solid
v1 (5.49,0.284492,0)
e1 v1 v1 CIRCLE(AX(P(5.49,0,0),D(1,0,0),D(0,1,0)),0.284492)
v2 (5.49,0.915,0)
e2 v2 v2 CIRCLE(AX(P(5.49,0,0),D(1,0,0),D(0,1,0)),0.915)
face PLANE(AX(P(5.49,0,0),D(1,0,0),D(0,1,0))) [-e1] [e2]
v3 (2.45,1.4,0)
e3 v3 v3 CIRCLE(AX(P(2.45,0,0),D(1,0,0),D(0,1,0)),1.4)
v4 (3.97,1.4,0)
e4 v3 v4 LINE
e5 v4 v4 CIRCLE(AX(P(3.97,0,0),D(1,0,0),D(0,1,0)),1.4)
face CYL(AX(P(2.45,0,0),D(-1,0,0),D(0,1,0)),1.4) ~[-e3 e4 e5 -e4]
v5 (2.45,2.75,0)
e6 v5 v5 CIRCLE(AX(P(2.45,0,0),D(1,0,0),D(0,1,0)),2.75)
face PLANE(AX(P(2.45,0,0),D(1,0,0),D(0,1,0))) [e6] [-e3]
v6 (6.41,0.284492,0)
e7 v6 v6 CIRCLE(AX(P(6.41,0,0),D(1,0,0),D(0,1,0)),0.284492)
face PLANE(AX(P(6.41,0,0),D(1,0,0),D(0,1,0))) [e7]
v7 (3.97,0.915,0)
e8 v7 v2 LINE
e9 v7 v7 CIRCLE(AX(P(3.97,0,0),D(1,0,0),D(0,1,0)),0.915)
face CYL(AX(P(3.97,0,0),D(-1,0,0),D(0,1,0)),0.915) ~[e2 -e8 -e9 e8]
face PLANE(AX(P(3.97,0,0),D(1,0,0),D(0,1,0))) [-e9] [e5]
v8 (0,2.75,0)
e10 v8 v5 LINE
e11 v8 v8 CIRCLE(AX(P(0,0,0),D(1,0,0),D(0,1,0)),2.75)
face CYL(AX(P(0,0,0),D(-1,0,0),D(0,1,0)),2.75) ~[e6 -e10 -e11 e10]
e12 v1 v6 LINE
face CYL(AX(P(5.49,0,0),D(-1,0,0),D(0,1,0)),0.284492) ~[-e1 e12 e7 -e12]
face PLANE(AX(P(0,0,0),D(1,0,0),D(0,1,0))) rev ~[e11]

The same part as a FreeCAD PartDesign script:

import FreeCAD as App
import Part
import Sketcher

V = App.Vector
Q = App.Units.Quantity

doc = App.newDocument("Part")
params = doc.addObject("Spreadsheet::Sheet", "Params")
for row, (alias, value) in enumerate([
    ("sketch1_diameter", "5.5 mm"),
    ("pad1_length", "2.45 mm"),
    ("sketch2_diameter", "2.8 mm"),
    ("pad2_length", "1.52 mm"),
    ("sketch3_diameter", "1.83 mm"),
    ("pad3_length", "1.52 mm"),
    ("pad4_length", "0.92 mm"),
], start=1):
    params.set(f"A{row}", alias)
    params.set(f"B{row}", "=" + value)
    params.setAlias(f"B{row}", alias)

body = doc.addObject("PartDesign::Body", "Body")

sketch1 = body.newObject("Sketcher::SketchObject", "Sketch")
sketch1.AttachmentSupport = (doc.getObject("YZ_Plane"), [""])
sketch1.MapMode = "FlatFace"
sketch1.addGeometry(Part.Circle(V(0, 0, 0), V(0, 0, 1), 2.8), False)
sketch1.addConstraint([
    Sketcher.Constraint("Coincident", 0, 3, -1, 1),
    Sketcher.Constraint("Diameter", 0, Q("5.5 mm")),
])
sketch1.setExpression("Constraints[1]", "Params.sketch1_diameter")
pad1 = body.newObject("PartDesign::Pad", "Pad")
pad1.Profile = sketch1
pad1.setExpression("Length", "Params.pad1_length")

sketch2 = body.newObject("Sketcher::SketchObject", "Sketch001")
sketch2.AttachmentSupport = (doc.getObject("YZ_Plane"), [""])
sketch2.MapMode = "FlatFace"
sketch2.AttachmentOffset = App.Placement(V(0, 0, 2.45), App.Rotation())
sketch2.addGeometry(Part.Circle(V(0, 0, 0), V(0, 0, 1), 1.4), False)
sketch2.addConstraint([
    Sketcher.Constraint("Coincident", 0, 3, -1, 1),
    Sketcher.Constraint("Diameter", 0, Q("2.8 mm")),
])
sketch2.setExpression("Constraints[1]", "Params.sketch2_diameter")
pad2 = body.newObject("PartDesign::Pad", "Pad001")
pad2.Profile = sketch2
pad2.setExpression("Length", "Params.pad2_length")

sketch3 = body.newObject("Sketcher::SketchObject", "Sketch002")
sketch3.AttachmentSupport = (doc.getObject("YZ_Plane"), [""])
sketch3.MapMode = "FlatFace"
sketch3.AttachmentOffset = App.Placement(V(0, 0, 3.97), App.Rotation())
sketch3.addGeometry(Part.Circle(V(0, 0, 0), V(0, 0, 1), 0.9), False)
sketch3.addConstraint([
    Sketcher.Constraint("Coincident", 0, 3, -1, 1),
    Sketcher.Constraint("Diameter", 0, Q("1.83 mm")),
])
sketch3.setExpression("Constraints[1]", "Params.sketch3_diameter")
pad3 = body.newObject("PartDesign::Pad", "Pad002")
pad3.Profile = sketch3
pad3.setExpression("Length", "Params.pad3_length")

sketch4 = body.newObject("Sketcher::SketchObject", "Sketch003")
sketch4.AttachmentSupport = (doc.getObject("YZ_Plane"), [""])
sketch4.MapMode = "FlatFace"
sketch4.AttachmentOffset = App.Placement(V(0, 0, 5.49), App.Rotation())
sketch4.addGeometry(Part.Circle(V(0, 0, 0), V(0, 0, 1), 0.28), False)
sketch4.addConstraint([
    Sketcher.Constraint("Coincident", 0, 3, -1, 1),
    Sketcher.Constraint("Diameter", 0, Q("0.568984 mm")),
])
pad4 = body.newObject("PartDesign::Pad", "Pad003")
pad4.Profile = sketch4
pad4.setExpression("Length", "Params.pad4_length")

doc.recompute()
